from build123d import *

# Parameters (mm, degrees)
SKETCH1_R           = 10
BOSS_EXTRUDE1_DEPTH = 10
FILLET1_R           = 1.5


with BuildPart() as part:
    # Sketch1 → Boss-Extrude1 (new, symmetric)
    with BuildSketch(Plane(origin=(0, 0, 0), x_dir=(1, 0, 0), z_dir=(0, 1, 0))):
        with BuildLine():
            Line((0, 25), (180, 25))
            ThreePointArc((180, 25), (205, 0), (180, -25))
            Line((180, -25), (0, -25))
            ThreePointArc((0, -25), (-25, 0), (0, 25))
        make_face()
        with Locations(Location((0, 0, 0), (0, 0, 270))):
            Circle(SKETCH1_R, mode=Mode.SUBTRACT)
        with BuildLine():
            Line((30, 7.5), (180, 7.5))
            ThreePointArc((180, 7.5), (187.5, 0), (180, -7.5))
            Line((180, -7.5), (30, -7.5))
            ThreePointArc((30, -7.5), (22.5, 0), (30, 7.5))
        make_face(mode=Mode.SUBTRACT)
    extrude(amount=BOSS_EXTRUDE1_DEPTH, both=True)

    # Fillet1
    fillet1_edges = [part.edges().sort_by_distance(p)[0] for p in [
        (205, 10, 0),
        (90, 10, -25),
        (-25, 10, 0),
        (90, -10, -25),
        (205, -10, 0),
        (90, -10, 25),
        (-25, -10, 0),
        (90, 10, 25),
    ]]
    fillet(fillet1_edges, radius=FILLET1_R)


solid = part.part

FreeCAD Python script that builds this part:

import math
import FreeCAD as App
import Part
import Sketcher
Q = App.Units.Quantity


def edges_at(feature, points):
    """Names of the edges that pass closest to the given points."""
    edges = feature.Shape.Edges
    near = lambda p: min(range(len(edges)), key=lambda i: edges[i].distToShape(Part.Vertex(*p))[0])
    return sorted({f"Edge{near(p) + 1}" for p in points})

doc = App.newDocument("Part")
body = doc.addObject("PartDesign::Body", "Body")

sketch1 = doc.addObject("Sketcher::SketchObject", "Sketch")
body.addObject(sketch1)
sketch1.AttachmentSupport = (doc.XZ_Plane, [""])
sketch1.MapMode = "FlatFace"
sketch1.addGeometry(Part.LineSegment(App.Vector(180, -25, 0), App.Vector(0, -25, 0)), False)
sketch1.addGeometry(Part.ArcOfCircle(Part.Circle(App.Vector(0, 0, 0), App.Vector(0, 0, 1), 25), math.radians(90), math.radians(270)), False)
sketch1.addGeometry(Part.LineSegment(App.Vector(0, 25, 0), App.Vector(180, 25, 0)), False)
sketch1.addGeometry(Part.ArcOfCircle(Part.Circle(App.Vector(180, 0, 0), App.Vector(0, 0, 1), 25), math.radians(-90), math.radians(90)), False)
sketch1.addGeometry(Part.LineSegment(App.Vector(30, -8, 0), App.Vector(180, -8, 0)), False)
sketch1.addGeometry(Part.ArcOfCircle(Part.Circle(App.Vector(180, 0, 0), App.Vector(0, 0, 1), 8), math.radians(-90), math.radians(90)), False)
sketch1.addGeometry(Part.LineSegment(App.Vector(180, 8, 0), App.Vector(30, 8, 0)), False)
sketch1.addGeometry(Part.ArcOfCircle(Part.Circle(App.Vector(30, 0, 0), App.Vector(0, 0, 1), 8), math.radians(90), math.radians(270)), False)
sketch1.addGeometry(Part.Circle(App.Vector(0, 0, 0), App.Vector(0, 0, 1), 10), False)
sketch1.addConstraint(Sketcher.Constraint("Tangent", 0, 2, 1, 2))
sketch1.addConstraint(Sketcher.Constraint("Tangent", 1, 1, 2, 1))
sketch1.addConstraint(Sketcher.Constraint("Tangent", 2, 2, 3, 2))
sketch1.addConstraint(Sketcher.Constraint("Tangent", 3, 1, 0, 1))
sketch1.addConstraint(Sketcher.Constraint("Tangent", 4, 2, 5, 1))
sketch1.addConstraint(Sketcher.Constraint("Tangent", 5, 2, 6, 1))
sketch1.addConstraint(Sketcher.Constraint("Tangent", 6, 2, 7, 1))
sketch1.addConstraint(Sketcher.Constraint("Tangent", 7, 2, 4, 1))
sketch1.addConstraint(Sketcher.Constraint("Horizontal", 0))
sketch1.addConstraint(Sketcher.Constraint("Horizontal", 2))
sketch1.addConstraint(Sketcher.Constraint("Horizontal", 4))
sketch1.addConstraint(Sketcher.Constraint("Horizontal", 6))
sketch1.addConstraint(Sketcher.Constraint("Coincident", 1, 3, -1, 1))
sketch1.addConstraint(Sketcher.Constraint("Coincident", 8, 3, -1, 1))
sketch1.addConstraint(Sketcher.Constraint("Coincident", 5, 3, 3, 3))
sketch1.addConstraint(Sketcher.Constraint("Diameter", 8, Q("20 mm")))
sketch1.addConstraint(Sketcher.Constraint("Radius", 1, Q("25 mm")))
sketch1.addConstraint(Sketcher.Constraint("Radius", 5, Q("7.5 mm")))
sketch1.addConstraint(Sketcher.Constraint("DistanceX", 0, 2, 0, 1, Q("180 mm")))
sketch1.addConstraint(Sketcher.Constraint("DistanceX", 4, 1, 4, 2, Q("150 mm")))
pad1 = doc.addObject("PartDesign::Pad", "Pad")
body.addObject(pad1)
pad1.Profile = sketch1
pad1.Length = 20
pad1.Midplane = True
doc.recompute()

fillet = doc.addObject("PartDesign::Fillet", "Fillet")
body.addObject(fillet)
fillet.Base = (pad1, edges_at(pad1, [
    (205, 10, 0),
    (90, 10, -25),
    (-25, 10, 0),
    (90, -10, -25),
    (205, -10, 0),
    (90, -10, 25),
    (-25, -10, 0),
    (90, 10, 25),
]))
fillet.Radius = 1.5

doc.recompute()
